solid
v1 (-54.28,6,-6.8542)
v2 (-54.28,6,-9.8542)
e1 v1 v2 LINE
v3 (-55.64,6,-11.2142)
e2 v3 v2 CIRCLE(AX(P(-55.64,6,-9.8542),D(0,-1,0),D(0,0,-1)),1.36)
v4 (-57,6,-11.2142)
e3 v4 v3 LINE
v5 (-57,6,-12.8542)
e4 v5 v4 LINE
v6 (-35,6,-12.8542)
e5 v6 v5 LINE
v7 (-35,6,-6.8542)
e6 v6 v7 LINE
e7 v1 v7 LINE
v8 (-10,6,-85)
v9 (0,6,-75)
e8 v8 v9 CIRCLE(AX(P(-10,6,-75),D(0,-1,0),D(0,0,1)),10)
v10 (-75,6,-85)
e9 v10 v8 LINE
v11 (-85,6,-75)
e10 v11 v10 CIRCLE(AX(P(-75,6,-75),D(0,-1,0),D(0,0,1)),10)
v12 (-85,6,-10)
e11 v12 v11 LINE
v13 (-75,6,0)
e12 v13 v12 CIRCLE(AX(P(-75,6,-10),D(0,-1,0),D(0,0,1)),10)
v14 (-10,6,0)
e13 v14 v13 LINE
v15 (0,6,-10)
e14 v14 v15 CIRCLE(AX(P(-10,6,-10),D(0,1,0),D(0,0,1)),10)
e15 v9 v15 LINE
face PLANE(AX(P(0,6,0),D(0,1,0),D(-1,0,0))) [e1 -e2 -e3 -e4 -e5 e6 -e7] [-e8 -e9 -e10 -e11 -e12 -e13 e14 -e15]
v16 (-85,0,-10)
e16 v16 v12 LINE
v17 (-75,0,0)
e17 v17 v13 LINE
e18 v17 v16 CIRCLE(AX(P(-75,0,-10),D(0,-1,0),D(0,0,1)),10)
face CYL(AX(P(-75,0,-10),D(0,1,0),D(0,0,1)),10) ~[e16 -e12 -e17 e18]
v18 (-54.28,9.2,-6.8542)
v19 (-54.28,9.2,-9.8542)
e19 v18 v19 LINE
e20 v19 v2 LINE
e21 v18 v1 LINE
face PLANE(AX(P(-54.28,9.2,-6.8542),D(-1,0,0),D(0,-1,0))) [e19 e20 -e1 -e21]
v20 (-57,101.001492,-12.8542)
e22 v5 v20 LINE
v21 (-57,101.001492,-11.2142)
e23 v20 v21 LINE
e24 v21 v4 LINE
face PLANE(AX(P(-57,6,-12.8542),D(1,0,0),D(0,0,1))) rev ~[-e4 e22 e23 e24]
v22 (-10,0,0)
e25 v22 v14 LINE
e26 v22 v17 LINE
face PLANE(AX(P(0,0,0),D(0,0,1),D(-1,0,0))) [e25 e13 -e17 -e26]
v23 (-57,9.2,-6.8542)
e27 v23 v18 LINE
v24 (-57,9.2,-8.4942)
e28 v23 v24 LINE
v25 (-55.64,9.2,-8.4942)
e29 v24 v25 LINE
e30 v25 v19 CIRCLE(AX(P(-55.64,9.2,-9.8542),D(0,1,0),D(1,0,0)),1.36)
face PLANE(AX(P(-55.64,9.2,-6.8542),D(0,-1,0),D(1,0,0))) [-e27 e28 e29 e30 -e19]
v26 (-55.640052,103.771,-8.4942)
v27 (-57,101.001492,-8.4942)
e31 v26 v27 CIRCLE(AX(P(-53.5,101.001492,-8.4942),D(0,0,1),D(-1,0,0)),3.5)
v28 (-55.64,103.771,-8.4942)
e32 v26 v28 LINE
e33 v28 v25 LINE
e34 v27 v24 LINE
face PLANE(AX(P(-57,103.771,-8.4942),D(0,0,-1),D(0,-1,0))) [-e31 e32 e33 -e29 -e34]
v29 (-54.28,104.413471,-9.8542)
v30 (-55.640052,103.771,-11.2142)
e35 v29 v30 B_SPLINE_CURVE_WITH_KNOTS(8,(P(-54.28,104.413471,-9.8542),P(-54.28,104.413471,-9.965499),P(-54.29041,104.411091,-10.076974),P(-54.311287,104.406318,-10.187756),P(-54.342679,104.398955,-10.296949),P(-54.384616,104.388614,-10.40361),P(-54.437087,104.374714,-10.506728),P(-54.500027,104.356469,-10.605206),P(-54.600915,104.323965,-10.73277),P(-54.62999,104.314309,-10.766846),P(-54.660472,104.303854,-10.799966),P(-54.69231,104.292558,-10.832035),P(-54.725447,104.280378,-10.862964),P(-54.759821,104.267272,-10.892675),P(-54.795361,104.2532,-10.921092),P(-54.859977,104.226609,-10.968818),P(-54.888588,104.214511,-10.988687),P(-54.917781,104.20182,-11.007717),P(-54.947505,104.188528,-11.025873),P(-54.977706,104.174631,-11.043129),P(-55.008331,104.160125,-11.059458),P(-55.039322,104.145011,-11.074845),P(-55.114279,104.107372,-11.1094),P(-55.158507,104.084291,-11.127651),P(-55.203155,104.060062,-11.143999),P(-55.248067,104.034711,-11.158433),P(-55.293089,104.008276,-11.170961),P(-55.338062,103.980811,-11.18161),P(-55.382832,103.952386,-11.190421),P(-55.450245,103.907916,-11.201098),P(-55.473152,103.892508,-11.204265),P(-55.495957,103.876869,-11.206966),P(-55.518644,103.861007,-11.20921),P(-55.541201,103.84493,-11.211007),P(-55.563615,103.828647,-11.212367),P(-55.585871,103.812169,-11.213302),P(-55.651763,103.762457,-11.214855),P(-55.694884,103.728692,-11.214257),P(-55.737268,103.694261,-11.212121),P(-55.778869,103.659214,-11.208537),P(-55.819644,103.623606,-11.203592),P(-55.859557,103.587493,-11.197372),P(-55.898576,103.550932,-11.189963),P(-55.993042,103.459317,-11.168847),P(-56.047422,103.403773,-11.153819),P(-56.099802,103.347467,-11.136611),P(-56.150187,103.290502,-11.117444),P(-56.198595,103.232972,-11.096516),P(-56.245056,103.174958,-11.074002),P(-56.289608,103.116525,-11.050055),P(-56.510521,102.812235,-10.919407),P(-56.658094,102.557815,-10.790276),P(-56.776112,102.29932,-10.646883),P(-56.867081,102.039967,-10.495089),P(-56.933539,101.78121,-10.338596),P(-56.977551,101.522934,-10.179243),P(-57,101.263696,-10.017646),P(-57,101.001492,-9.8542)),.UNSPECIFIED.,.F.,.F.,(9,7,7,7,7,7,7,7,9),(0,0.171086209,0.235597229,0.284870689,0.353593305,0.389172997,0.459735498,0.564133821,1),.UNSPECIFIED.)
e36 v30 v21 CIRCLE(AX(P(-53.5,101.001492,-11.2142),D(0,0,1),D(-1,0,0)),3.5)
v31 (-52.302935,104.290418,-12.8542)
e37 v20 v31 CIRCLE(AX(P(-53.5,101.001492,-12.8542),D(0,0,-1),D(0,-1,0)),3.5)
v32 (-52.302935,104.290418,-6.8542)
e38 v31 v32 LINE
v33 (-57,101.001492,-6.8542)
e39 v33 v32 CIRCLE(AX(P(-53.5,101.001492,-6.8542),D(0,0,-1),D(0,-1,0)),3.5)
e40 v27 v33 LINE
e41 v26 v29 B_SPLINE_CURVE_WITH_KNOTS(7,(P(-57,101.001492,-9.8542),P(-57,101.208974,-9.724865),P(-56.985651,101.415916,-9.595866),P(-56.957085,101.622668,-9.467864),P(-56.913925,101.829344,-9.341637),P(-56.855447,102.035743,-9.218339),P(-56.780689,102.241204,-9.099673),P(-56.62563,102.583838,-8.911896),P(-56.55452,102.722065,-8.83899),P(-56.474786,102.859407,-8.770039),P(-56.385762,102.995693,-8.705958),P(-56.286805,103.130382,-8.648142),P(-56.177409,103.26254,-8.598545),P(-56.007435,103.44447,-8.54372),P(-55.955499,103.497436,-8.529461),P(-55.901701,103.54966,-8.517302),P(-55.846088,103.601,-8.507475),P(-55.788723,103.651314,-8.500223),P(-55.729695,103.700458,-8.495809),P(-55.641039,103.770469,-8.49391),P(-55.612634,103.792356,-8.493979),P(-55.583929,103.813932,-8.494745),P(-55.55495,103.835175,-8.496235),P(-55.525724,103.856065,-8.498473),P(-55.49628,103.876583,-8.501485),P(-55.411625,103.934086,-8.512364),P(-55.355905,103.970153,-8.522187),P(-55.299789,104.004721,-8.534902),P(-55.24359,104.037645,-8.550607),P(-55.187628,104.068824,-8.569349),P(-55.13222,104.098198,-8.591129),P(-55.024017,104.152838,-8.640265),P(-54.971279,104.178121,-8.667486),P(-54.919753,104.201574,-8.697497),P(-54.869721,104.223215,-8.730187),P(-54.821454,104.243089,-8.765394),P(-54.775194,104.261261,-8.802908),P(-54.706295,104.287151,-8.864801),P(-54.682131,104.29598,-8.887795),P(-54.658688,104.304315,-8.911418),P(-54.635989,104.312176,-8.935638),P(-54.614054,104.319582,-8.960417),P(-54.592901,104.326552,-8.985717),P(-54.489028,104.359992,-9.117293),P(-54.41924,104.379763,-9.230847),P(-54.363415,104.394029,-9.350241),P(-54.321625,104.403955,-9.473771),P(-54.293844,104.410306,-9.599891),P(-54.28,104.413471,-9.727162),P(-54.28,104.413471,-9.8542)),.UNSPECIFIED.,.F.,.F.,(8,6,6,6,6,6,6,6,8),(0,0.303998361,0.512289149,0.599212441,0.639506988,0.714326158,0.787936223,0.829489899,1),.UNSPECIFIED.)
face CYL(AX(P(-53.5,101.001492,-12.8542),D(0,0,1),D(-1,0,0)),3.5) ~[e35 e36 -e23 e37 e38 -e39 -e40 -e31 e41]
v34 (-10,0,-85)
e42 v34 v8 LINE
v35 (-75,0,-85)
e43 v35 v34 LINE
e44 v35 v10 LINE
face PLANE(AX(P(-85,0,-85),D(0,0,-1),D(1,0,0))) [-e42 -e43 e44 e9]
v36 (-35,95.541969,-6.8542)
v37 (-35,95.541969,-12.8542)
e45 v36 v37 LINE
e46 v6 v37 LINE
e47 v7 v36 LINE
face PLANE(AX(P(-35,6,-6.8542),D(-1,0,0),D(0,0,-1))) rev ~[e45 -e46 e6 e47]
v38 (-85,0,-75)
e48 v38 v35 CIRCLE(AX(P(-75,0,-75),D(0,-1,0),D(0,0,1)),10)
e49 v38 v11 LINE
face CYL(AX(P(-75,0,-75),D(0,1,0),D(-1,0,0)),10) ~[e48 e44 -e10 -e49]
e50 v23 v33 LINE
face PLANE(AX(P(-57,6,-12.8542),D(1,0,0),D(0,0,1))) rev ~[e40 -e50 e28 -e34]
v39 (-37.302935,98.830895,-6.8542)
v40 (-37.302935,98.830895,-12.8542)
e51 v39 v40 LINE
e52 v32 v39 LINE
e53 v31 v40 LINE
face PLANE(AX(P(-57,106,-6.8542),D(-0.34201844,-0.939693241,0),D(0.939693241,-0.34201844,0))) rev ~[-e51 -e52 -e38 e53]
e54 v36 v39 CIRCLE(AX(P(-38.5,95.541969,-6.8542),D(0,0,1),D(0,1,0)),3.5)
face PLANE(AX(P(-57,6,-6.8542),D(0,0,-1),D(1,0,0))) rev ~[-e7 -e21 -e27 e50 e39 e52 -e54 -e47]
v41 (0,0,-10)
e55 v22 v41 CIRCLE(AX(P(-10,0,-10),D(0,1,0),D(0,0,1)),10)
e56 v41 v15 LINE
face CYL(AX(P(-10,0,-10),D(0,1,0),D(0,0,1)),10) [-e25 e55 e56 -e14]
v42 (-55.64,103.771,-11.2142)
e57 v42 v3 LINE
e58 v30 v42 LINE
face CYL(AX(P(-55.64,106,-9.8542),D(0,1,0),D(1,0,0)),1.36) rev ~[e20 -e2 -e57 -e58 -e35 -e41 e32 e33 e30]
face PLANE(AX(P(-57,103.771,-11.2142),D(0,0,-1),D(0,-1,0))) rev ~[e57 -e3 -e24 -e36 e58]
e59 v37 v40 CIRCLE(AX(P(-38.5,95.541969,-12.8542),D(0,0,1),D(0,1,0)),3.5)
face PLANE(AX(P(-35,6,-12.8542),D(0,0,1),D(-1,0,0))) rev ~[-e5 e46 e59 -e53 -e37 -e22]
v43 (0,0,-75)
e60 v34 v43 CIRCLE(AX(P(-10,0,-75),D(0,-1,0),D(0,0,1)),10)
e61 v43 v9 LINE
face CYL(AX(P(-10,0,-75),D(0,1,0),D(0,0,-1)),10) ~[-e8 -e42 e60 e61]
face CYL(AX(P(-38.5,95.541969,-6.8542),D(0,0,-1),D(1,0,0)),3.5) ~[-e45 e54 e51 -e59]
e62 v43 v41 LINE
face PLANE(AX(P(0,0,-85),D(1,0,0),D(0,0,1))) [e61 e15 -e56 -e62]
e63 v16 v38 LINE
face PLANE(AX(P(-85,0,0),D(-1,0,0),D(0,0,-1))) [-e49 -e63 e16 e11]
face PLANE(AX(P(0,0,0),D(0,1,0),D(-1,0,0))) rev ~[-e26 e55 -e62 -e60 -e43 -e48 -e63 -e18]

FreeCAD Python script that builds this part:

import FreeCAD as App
import Part
import Sketcher
Q = App.Units.Quantity


def edges_at(feature, points):
    """Names of the edges that pass closest to the given points."""
    edges = feature.Shape.Edges
    near = lambda p: min(range(len(edges)), key=lambda i: edges[i].distToShape(Part.Vertex(*p))[0])
    return sorted({f"Edge{near(p) + 1}" for p in points})


def add_polygon(sketch, points):
    """Adds a closed chain of lines whose ends are joined by coincident constraints."""
    first, n = sketch.GeometryCount, len(points)
    for a, b in zip(points, points[1:] + points[:1]):
        sketch.addGeometry(Part.LineSegment(App.Vector(*a, 0), App.Vector(*b, 0)), False)
    for i in range(n):
        sketch.addConstraint(Sketcher.Constraint("Coincident", first + i, 2, first + (i + 1) % n, 1))

doc = App.newDocument("Part")
body = doc.addObject("PartDesign::Body", "Body")

sketch1 = body.newObject("Sketcher::SketchObject", "Sketch")
sketch1.AttachmentSupport = (doc.getObject("XZ_Plane"), [""])
sketch1.MapMode = "FlatFace"
add_polygon(sketch1, [(-85, 0), (0, 0), (0, -85), (-85, -85)])
sketch1.addConstraint(Sketcher.Constraint("Horizontal", 0))
sketch1.addConstraint(Sketcher.Constraint("Vertical", 1))
sketch1.addConstraint(Sketcher.Constraint("Horizontal", 2))
sketch1.addConstraint(Sketcher.Constraint("Vertical", 3))
sketch1.addConstraint(Sketcher.Constraint("Coincident", 0, 2, -1, 1))
sketch1.addConstraint(Sketcher.Constraint("Equal", 2, 1))
sketch1.addConstraint(Sketcher.Constraint("DistanceX", 0, 1, 0, 2, 85.0))
pad1 = body.newObject("PartDesign::Pad", "Pad")
pad1.Profile = sketch1
pad1.Length = 6
pad1.Reversed = True
doc.recompute()

fillet = body.newObject("PartDesign::Fillet", "Fillet")
fillet.Base = (pad1, edges_at(pad1, [
    (-85, 3, 0),
    (0, 3, 0),
    (0, 3, -85),
    (-85, 3, -85),
]))
fillet.Radius = 10

sketch2 = body.newObject("Sketcher::SketchObject", "Sketch001")
sketch2.AttachmentSupport = (doc.getObject("XZ_Plane"), [""])
sketch2.MapMode = "FlatFace"
sketch2.AttachmentOffset = App.Placement(App.Vector(0, 0, -6), App.Rotation())
add_polygon(sketch2, [(-57, -13), (-57, -7), (-35, -7), (-35, -13)])
sketch2.addConstraint(Sketcher.Constraint("Vertical", 0))
sketch2.addConstraint(Sketcher.Constraint("Horizontal", 1))
sketch2.addConstraint(Sketcher.Constraint("Vertical", 2))
sketch2.addConstraint(Sketcher.Constraint("Horizontal", 3))
sketch2.addConstraint(Sketcher.Constraint("DistanceX", 1, 1, 1, 2, 22.0))
sketch2.addConstraint(Sketcher.Constraint("DistanceY", 0, 1, 0, 2, 6.0))
sketch2.addConstraint(Sketcher.Constraint("DistanceX", 0, 2, -1, 1, 57.0))
sketch2.addConstraint(Sketcher.Constraint("DistanceY", 0, 2, -1, 1, 6.8542))
pad2 = body.newObject("PartDesign::Pad", "Pad001")
pad2.Profile = sketch2
pad2.Length = 100
pad2.Reversed = True

sketch3 = body.newObject("Sketcher::SketchObject", "Sketch002")
sketch3.AttachmentSupport = (doc.getObject("XY_Plane"), [""])
sketch3.MapMode = "FlatFace"
sketch3.AttachmentOffset = App.Placement(App.Vector(0, 0, -6.8542), App.Rotation())
add_polygon(sketch3, [(-35, 98), (-35, 106), (-57, 106)])
sketch3.addConstraint(Sketcher.Constraint("Vertical", 0))
sketch3.addConstraint(Sketcher.Constraint("Horizontal", 1))
sketch3.addConstraint(Sketcher.Constraint("Angle", 2, Q("-20 deg")))
sketch3.addConstraint(Sketcher.Constraint("DistanceX", 1, 2, 1, 1, 22.0))
sketch3.addConstraint(Sketcher.Constraint("DistanceX", 0, 2, -1, 1, 35.0))
sketch3.addConstraint(Sketcher.Constraint("DistanceY", -1, 1, 0, 2, 106.0))
pocket1 = body.newObject("PartDesign::Pocket", "Pocket")
pocket1.Profile = sketch3
pocket1.Length = 10
doc.recompute()

fillet2 = body.newObject("PartDesign::Fillet", "Fillet001")
fillet2.Base = (pocket1, edges_at(pocket1, [(-57, 106, -9.854), (-35, 97.993, -9.854)]))
fillet2.Radius = 3.5

sketch4 = body.newObject("Sketcher::SketchObject", "Sketch003")
sketch4.AttachmentSupport = (doc.getObject("XZ_Plane"), [""])
sketch4.MapMode = "FlatFace"
sketch4.AttachmentOffset = App.Placement(App.Vector(0, 0, -6), App.Rotation())
sketch4.addGeometry(Part.Circle(App.Vector(-55.6, -9.9, 0), App.Vector(0, 0, 1), 1.4), False)
sketch4.addConstraint(Sketcher.Constraint("Diameter", 0, 2.72))
sketch4.addConstraint(Sketcher.Constraint("DistanceX", 0, 3, -1, 1, 55.64))
sketch4.addConstraint(Sketcher.Constraint("DistanceY", 0, 3, -1, 1, 9.8542))
pad3 = body.newObject("PartDesign::Pad", "Pad002")
pad3.Profile = sketch4
pad3.Length = 100
pad3.Reversed = True

sketch5 = body.newObject("Sketcher::SketchObject", "Sketch004")
sketch5.AttachmentSupport = (doc.getObject("XZ_Plane"), [""])
sketch5.MapMode = "FlatFace"
sketch5.AttachmentOffset = App.Placement(App.Vector(0, 0, -106), App.Rotation())
sketch5.addGeometry(Part.Circle(App.Vector(-55.6, -9.9, 0), App.Vector(0, 0, 1), 1.4), False)
sketch5.addConstraint(Sketcher.Constraint("Diameter", 0, 2.72))
sketch5.addConstraint(Sketcher.Constraint("DistanceX", 0, 3, -1, 1, 55.64))
sketch5.addConstraint(Sketcher.Constraint("DistanceY", 0, 3, -1, 1, 9.8542))
pocket2 = body.newObject("PartDesign::Pocket", "Pocket001")
pocket2.Profile = sketch5
pocket2.Length = 100
pocket2.Reversed = True

sketch6 = body.newObject("Sketcher::SketchObject", "Sketch005")
sketch6.AttachmentSupport = (doc.getObject("YZ_Plane"), [""])
sketch6.MapMode = "FlatFace"
sketch6.AttachmentOffset = App.Placement(App.Vector(0, 0, -57), App.Rotation())
add_polygon(sketch6, [(103.8, -8.5), (103.8, -11.2), (6, -11.2), (6, -8.5)])
sketch6.addConstraint(Sketcher.Constraint("Vertical", 0))
sketch6.addConstraint(Sketcher.Constraint("Horizontal", 1))
sketch6.addConstraint(Sketcher.Constraint("Vertical", 2))
sketch6.addConstraint(Sketcher.Constraint("Horizontal", 3))
sketch6.addConstraint(Sketcher.Constraint("DistanceX", -1, 1, 1, 2, 6.0))
sketch6.addConstraint(Sketcher.Constraint("DistanceY", 0, 2, 0, 1, 2.72))
sketch6.addConstraint(Sketcher.Constraint("DistanceX", 1, 2, 1, 1, 97.771))
sketch6.addConstraint(Sketcher.Constraint("DistanceY", 0, 2, -1, 1, 11.2142))
pocket3 = body.newObject("PartDesign::Pocket", "Pocket002")
pocket3.Profile = sketch6
pocket3.Length = 1.36
pocket3.Reversed = True

sketch7 = body.newObject("Sketcher::SketchObject", "Sketch006")
sketch7.AttachmentSupport = (doc.getObject("XY_Plane"), [""])
sketch7.MapMode = "FlatFace"
sketch7.AttachmentOffset = App.Placement(App.Vector(0, 0, -6.8542), App.Rotation())
add_polygon(sketch7, [(-57, 9.2), (-57, 6), (-55.6, 6), (-55.6, 9.2)])
sketch7.addConstraint(Sketcher.Constraint("Vertical", 0))
sketch7.addConstraint(Sketcher.Constraint("Horizontal", 1))
sketch7.addConstraint(Sketcher.Constraint("Vertical", 2))
sketch7.addConstraint(Sketcher.Constraint("Horizontal", 3))
sketch7.addConstraint(Sketcher.Constraint("DistanceY", 0, 2, 0, 1, 3.2))
sketch7.addConstraint(Sketcher.Constraint("DistanceX", 0, 2, -1, 1, 57.0))
sketch7.addConstraint(Sketcher.Constraint("DistanceY", -1, 1, 0, 2, 6.0))
sketch7.addConstraint(Sketcher.Constraint("DistanceX", 1, 1, 1, 2, 1.36))
pocket4 = body.newObject("PartDesign::Pocket", "Pocket003")
pocket4.Profile = sketch7
pocket4.Length = 2

sketch8 = body.newObject("Sketcher::SketchObject", "Sketch007")
sketch8.AttachmentSupport = (doc.getObject("XY_Plane"), [""])
sketch8.MapMode = "FlatFace"
sketch8.AttachmentOffset = App.Placement(App.Vector(0, 0, -6.8542), App.Rotation())
add_polygon(sketch8, [(-54.3, 9.2), (-55.6, 9.2), (-55.6, 6), (-54.3, 6)])
sketch8.addConstraint(Sketcher.Constraint("Horizontal", 0))
sketch8.addConstraint(Sketcher.Constraint("Vertical", 1))
sketch8.addConstraint(Sketcher.Constraint("Horizontal", 2))
sketch8.addConstraint(Sketcher.Constraint("Vertical", 3))
sketch8.addConstraint(Sketcher.Constraint("DistanceX", 0, 2, 0, 1, 1.36))
sketch8.addConstraint(Sketcher.Constraint("DistanceY", 1, 2, 1, 1, 3.2))
sketch8.addConstraint(Sketcher.Constraint("DistanceY", -1, 1, 1, 2, 6.0))
sketch8.addConstraint(Sketcher.Constraint("DistanceX", 0, 2, -1, 1, 55.64))
pocket5 = body.newObject("PartDesign::Pocket", "Pocket004")
pocket5.Profile = sketch8
pocket5.Length = 3

doc.recompute()
